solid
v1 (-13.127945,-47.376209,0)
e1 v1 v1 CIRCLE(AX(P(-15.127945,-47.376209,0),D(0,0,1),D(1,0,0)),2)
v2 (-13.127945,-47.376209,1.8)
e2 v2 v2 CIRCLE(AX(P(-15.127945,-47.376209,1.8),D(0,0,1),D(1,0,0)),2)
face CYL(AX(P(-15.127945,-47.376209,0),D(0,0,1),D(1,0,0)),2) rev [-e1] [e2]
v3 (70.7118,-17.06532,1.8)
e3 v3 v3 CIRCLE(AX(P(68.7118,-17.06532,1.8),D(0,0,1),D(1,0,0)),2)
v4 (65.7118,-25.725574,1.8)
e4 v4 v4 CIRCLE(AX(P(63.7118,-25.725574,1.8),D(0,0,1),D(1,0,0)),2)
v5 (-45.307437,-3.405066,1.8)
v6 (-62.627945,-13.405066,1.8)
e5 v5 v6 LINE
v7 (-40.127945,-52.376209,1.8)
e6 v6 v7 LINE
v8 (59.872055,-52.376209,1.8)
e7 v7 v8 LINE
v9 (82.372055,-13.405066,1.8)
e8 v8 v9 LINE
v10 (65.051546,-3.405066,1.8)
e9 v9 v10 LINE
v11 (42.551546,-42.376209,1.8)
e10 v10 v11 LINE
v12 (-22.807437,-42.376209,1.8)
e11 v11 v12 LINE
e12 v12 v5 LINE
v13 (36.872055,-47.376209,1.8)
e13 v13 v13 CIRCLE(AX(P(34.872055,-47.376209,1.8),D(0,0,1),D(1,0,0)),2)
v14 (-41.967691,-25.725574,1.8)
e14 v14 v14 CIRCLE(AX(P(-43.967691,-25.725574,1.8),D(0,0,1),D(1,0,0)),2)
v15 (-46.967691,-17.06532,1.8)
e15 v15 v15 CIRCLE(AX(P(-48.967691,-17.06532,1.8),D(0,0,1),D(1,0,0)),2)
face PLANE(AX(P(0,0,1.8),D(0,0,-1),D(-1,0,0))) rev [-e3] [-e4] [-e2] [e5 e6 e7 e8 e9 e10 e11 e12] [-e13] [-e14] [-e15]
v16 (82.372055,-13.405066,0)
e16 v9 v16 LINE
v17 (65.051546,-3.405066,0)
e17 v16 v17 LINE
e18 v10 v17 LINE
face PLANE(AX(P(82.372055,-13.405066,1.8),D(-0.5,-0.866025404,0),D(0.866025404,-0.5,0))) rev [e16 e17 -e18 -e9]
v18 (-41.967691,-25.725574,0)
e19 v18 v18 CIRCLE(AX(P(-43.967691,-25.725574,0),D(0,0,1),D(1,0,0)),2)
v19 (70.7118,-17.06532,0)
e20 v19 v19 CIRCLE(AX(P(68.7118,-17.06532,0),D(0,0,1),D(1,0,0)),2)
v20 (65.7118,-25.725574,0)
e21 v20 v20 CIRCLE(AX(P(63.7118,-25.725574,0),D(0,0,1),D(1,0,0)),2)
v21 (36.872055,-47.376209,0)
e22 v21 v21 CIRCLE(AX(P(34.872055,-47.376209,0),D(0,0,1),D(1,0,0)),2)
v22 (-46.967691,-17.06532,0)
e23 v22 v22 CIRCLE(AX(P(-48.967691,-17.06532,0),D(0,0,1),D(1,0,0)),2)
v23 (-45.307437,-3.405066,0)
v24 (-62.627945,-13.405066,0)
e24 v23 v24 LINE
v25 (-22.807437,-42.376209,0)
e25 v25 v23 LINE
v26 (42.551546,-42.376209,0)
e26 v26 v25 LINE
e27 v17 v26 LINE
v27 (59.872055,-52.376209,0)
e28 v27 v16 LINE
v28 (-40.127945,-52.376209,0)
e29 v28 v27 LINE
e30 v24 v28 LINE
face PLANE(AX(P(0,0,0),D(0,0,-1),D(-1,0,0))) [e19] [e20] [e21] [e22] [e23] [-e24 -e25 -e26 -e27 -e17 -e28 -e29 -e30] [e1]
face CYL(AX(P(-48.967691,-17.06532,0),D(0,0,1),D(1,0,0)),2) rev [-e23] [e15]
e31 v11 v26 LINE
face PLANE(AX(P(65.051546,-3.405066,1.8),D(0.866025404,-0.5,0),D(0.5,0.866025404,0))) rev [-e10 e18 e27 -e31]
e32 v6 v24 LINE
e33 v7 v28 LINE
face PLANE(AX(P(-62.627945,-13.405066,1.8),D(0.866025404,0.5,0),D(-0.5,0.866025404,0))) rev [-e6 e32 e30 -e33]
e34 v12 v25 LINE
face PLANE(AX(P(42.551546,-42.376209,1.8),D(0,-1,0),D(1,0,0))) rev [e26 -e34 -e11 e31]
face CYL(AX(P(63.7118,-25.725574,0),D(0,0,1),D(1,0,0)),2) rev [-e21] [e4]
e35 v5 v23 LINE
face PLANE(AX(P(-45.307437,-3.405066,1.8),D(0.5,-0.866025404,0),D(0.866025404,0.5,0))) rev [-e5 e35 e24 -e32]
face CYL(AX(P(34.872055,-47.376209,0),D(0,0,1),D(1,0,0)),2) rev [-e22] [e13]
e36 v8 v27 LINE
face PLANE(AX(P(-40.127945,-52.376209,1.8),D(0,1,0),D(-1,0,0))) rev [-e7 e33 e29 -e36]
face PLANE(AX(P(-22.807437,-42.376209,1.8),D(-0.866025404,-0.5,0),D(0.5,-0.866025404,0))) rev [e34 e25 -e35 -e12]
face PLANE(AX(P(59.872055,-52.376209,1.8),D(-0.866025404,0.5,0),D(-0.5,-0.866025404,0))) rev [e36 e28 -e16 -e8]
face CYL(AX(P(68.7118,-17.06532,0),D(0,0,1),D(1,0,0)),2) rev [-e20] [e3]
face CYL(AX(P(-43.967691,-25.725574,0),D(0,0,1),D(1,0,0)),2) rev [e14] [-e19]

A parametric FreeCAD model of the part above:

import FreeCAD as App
import Part
import Sketcher

V = App.Vector
Q = App.Units.Quantity


def add_polygon(sketch, points):
    """Adds a closed chain of lines whose ends are joined by coincident constraints."""
    first, n = sketch.GeometryCount, len(points)
    for a, b in zip(points, points[1:] + points[:1]):
        sketch.addGeometry(Part.LineSegment(App.Vector(*a, 0), App.Vector(*b, 0)), False)
    for i in range(n):
        sketch.addConstraint(Sketcher.Constraint("Coincident", first + i, 2, first + (i + 1) % n, 1))

doc = App.newDocument("Part")
body = doc.addObject("PartDesign::Body", "Body")

# Sketch on XY plane
sketch1 = body.newObject("Sketcher::SketchObject", "Sketch")
sketch1.AttachmentSupport = (doc.getObject("XY_Plane"), [""])
sketch1.MapMode = "FlatFace"
add_polygon(sketch1, [(-40, -52), (60, -52), (82, -13), (65, -3), (43, -42), (-23, -42), (-45, -3), (-63, -13)])  # lines 0-7
sketch1.addConstraint([
    Sketcher.Constraint("Horizontal", 0),
    Sketcher.Constraint("Horizontal", 4),
    Sketcher.Constraint("Perpendicular", 1, 2),
    Sketcher.Constraint("Perpendicular", 2, 3),
    Sketcher.Constraint("Perpendicular", 5, 6),
    Sketcher.Constraint("Perpendicular", 6, 7),
    Sketcher.Constraint("Horizontal", 2, 2, 5, 2),
    Sketcher.Constraint("Horizontal", 1, 2, 6, 2),
    Sketcher.Constraint("Equal", 1, 3),
    Sketcher.Constraint("Equal", 3, 5),
    Sketcher.Constraint("DistanceX", 0, 1, 0, 2, Q("100 mm")),
    Sketcher.Constraint("Angle", 1, Q("60 deg")),
    Sketcher.Constraint("Distance", 1, Q("45 mm")),
    Sketcher.Constraint("Distance", 2, Q("20 mm")),
    Sketcher.Constraint("DistanceY", 0, 2, -1, 1, Q("52.376209 mm")),
    Sketcher.Constraint("DistanceX", -1, 1, 0, 2, Q("59.872055 mm")),
])
pad1 = body.newObject("PartDesign::Pad", "Pad")
pad1.Profile = sketch1
pad1.Length = 1.8

# Sketch on XY plane
sketch2 = body.newObject("Sketcher::SketchObject", "Sketch001")
sketch2.AttachmentSupport = (doc.getObject("XY_Plane"), [""])
sketch2.MapMode = "FlatFace"
sketch2.AttachmentOffset = App.Placement(V(0, 0, 1.8), App.Rotation())
sketch2.addGeometry([
    Part.Circle(V(-49, -17.1, 0), V(0, 0, 1), 2),  # 0
    Part.Circle(V(68.7, -17.1, 0), V(0, 0, 1), 2),  # 1
    Part.Circle(V(-44, -25.7, 0), V(0, 0, 1), 2),  # 2
    Part.Circle(V(63.7, -25.7, 0), V(0, 0, 1), 2),  # 3
    Part.Circle(V(-15.1, -47.4, 0), V(0, 0, 1), 2),  # 4
    Part.Circle(V(34.9, -47.4, 0), V(0, 0, 1), 2),  # 5
], False)
sketch2.addConstraint([
    Sketcher.Constraint("Equal", 0, 1),
    Sketcher.Constraint("Equal", 1, 2),
    Sketcher.Constraint("Equal", 2, 3),
    Sketcher.Constraint("Equal", 3, 4),
    Sketcher.Constraint("Equal", 4, 5),
    Sketcher.Constraint("Horizontal", 0, 3, 1, 3),
    Sketcher.Constraint("Horizontal", 2, 3, 3, 3),
    Sketcher.Constraint("Horizontal", 4, 3, 5, 3),
    Sketcher.Constraint("Diameter", 0, Q("4 mm")),
    Sketcher.Constraint("DistanceX", 0, 3, 2, 3, Q("5 mm")),
    Sketcher.Constraint("DistanceX", 3, 3, 1, 3, Q("5 mm")),
    Sketcher.Constraint("DistanceX", 4, 3, 5, 3, Q("50 mm")),
    Sketcher.Constraint("DistanceX", -1, 1, 1, 3, Q("68.7118 mm")),
    Sketcher.Constraint("DistanceX", 0, 3, -1, 1, Q("48.967691 mm")),
    Sketcher.Constraint("DistanceY", 0, 3, -1, 1, Q("17.06532 mm")),
    Sketcher.Constraint("DistanceY", 4, 3, -1, 1, Q("47.376209 mm")),
    Sketcher.Constraint("DistanceY", 2, 3, -1, 1, Q("25.725574 mm")),
    Sketcher.Constraint("DistanceX", 4, 3, -1, 1, Q("15.127945 mm")),
])
pocket1 = body.newObject("PartDesign::Pocket", "Pocket")
pocket1.Profile = sketch2
pocket1.Length = 1.8

doc.recompute()
